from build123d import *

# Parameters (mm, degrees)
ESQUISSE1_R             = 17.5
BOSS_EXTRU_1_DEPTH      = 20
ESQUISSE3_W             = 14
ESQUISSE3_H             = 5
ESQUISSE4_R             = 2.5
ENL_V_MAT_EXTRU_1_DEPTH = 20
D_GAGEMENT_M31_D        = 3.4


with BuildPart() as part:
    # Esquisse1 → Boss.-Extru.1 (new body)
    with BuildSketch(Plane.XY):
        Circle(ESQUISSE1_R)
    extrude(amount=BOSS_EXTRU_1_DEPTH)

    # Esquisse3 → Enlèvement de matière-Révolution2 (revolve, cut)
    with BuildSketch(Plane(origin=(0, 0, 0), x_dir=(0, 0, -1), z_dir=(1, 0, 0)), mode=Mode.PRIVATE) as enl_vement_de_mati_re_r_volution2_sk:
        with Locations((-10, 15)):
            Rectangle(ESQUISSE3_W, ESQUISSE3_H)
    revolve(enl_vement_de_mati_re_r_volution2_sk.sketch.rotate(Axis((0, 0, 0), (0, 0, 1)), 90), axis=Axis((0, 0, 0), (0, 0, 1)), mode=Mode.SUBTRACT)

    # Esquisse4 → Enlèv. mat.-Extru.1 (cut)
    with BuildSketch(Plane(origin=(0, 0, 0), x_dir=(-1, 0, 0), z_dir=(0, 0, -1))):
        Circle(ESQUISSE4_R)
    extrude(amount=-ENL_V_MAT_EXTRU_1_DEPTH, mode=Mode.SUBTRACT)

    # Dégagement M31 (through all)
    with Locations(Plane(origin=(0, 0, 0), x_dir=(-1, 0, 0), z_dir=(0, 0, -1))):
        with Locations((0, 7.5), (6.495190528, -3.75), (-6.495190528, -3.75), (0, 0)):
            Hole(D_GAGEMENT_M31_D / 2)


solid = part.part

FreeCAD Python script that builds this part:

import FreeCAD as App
import Part
import Sketcher
Q = App.Units.Quantity


def add_polygon(sketch, points):
    """Adds a closed chain of lines whose ends are joined by coincident constraints."""
    first, n = sketch.GeometryCount, len(points)
    for a, b in zip(points, points[1:] + points[:1]):
        sketch.addGeometry(Part.LineSegment(App.Vector(*a, 0), App.Vector(*b, 0)), False)
    for i in range(n):
        sketch.addConstraint(Sketcher.Constraint("Coincident", first + i, 2, first + (i + 1) % n, 1))

doc = App.newDocument("Part")
body = doc.addObject("PartDesign::Body", "Body")

sketch1 = doc.addObject("Sketcher::SketchObject", "Sketch")
body.addObject(sketch1)
sketch1.AttachmentSupport = (doc.XY_Plane, [""])
sketch1.MapMode = "FlatFace"
sketch1.addGeometry(Part.Circle(App.Vector(0, 0, 0), App.Vector(0, 0, 1), 18), False)
sketch1.addConstraint(Sketcher.Constraint("Coincident", 0, 3, -1, 1))
sketch1.addConstraint(Sketcher.Constraint("Diameter", 0, Q("35 mm")))
pad1 = doc.addObject("PartDesign::Pad", "Pad")
body.addObject(pad1)
pad1.Profile = sketch1
pad1.Length = 20

sketch2 = doc.addObject("Sketcher::SketchObject", "Sketch001")
body.addObject(sketch2)
sketch2.AttachmentSupport = (doc.YZ_Plane, [""])
sketch2.MapMode = "FlatFace"
add_polygon(sketch2, [(18, 17), (12, 17), (12, 3), (18, 3)])
sketch2.addConstraint(Sketcher.Constraint("Horizontal", 0))
sketch2.addConstraint(Sketcher.Constraint("Vertical", 1))
sketch2.addConstraint(Sketcher.Constraint("Horizontal", 2))
sketch2.addConstraint(Sketcher.Constraint("Vertical", 3))
sketch2.addConstraint(Sketcher.Constraint("DistanceX", 0, 2, 0, 1, Q("5 mm")))
sketch2.addConstraint(Sketcher.Constraint("DistanceY", 1, 2, 1, 1, Q("14 mm")))
sketch2.addConstraint(Sketcher.Constraint("DistanceY", -1, 1, 0, 2, Q("17 mm")))
sketch2.addConstraint(Sketcher.Constraint("DistanceX", -1, 1, 0, 2, Q("12.5 mm")))
groove = doc.addObject("PartDesign::Groove", "Groove")
body.addObject(groove)
groove.Profile = sketch2
groove.ReferenceAxis = (sketch2, ["V_Axis"])
groove.Angle = 360

sketch3 = doc.addObject("Sketcher::SketchObject", "Sketch002")
body.addObject(sketch3)
sketch3.AttachmentSupport = (doc.XY_Plane, [""])
sketch3.MapMode = "FlatFace"
sketch3.addGeometry(Part.Circle(App.Vector(0, 0, 0), App.Vector(0, 0, 1), 2.5), False)
sketch3.addConstraint(Sketcher.Constraint("Coincident", 0, 3, -1, 1))
sketch3.addConstraint(Sketcher.Constraint("Diameter", 0, Q("5 mm")))
pocket1 = doc.addObject("PartDesign::Pocket", "Pocket")
body.addObject(pocket1)
pocket1.Profile = sketch3
pocket1.Length = 20
pocket1.Reversed = True

sketch4 = doc.addObject("Sketcher::SketchObject", "Sketch003")
body.addObject(sketch4)
sketch4.AttachmentSupport = (doc.XY_Plane, [""])
sketch4.MapMode = "FlatFace"
sketch4.addGeometry(Part.Circle(App.Vector(0, 7.5, 0), App.Vector(0, 0, 1), 1.7), False)
sketch4.addGeometry(Part.Circle(App.Vector(-6.5, -3.8, 0), App.Vector(0, 0, 1), 1.7), False)
sketch4.addGeometry(Part.Circle(App.Vector(6.5, -3.8, 0), App.Vector(0, 0, 1), 1.7), False)
sketch4.addGeometry(Part.Circle(App.Vector(0, 0, 0), App.Vector(0, 0, 1), 1.7), False)
sketch4.addConstraint(Sketcher.Constraint("Coincident", 3, 3, -1, 1))
sketch4.addConstraint(Sketcher.Constraint("Equal", 0, 1))
sketch4.addConstraint(Sketcher.Constraint("Equal", 1, 2))
sketch4.addConstraint(Sketcher.Constraint("Equal", 2, 3))
sketch4.addConstraint(Sketcher.Constraint("Symmetric", 1, 3, 2, 3, -2))
sketch4.addConstraint(Sketcher.Constraint("PointOnObject", 0, 3, -2))
sketch4.addConstraint(Sketcher.Constraint("Diameter", 0, Q("3.4 mm")))
sketch4.addConstraint(Sketcher.Constraint("DistanceY", -1, 1, 0, 3, Q("7.5 mm")))
sketch4.addConstraint(Sketcher.Constraint("DistanceY", 1, 3, -1, 1, Q("3.75 mm")))
sketch4.addConstraint(Sketcher.Constraint("DistanceX", 1, 3, -1, 1, Q("6.495191 mm")))
doc.recompute()
hole = doc.addObject("PartDesign::Hole", "Hole")
body.addObject(hole)
hole.Profile = sketch4
hole.ThreadType = "None"
hole.Diameter = 3.4
hole.DepthType = "ThroughAll"
hole.Reversed = True

doc.recompute()
